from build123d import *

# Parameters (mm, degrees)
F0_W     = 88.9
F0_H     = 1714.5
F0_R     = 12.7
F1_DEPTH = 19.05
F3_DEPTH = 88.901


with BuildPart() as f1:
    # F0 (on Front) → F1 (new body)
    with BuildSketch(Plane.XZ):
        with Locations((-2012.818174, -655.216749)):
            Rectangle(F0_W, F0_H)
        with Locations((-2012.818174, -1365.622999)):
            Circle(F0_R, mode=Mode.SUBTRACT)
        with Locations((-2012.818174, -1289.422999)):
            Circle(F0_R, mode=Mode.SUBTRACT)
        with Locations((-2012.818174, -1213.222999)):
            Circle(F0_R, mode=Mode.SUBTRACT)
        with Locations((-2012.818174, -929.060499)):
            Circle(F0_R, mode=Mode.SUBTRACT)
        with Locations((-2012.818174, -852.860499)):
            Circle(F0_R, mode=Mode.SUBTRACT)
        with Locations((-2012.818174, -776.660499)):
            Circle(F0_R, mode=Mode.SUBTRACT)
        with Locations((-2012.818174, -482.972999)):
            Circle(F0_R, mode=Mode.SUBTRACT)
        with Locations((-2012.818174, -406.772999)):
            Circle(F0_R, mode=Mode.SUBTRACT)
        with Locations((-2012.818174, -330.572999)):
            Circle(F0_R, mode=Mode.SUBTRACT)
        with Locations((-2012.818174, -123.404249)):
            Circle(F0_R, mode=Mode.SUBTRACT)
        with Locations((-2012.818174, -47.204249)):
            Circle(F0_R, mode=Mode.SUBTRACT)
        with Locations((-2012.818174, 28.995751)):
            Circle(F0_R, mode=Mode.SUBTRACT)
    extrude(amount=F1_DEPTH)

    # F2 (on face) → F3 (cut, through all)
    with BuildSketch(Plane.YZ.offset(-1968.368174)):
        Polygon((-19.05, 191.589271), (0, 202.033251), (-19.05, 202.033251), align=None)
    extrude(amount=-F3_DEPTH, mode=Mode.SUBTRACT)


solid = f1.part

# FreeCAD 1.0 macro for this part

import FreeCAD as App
import Part
import Sketcher
from FreeCAD import Vector
Q = App.Units.Quantity

doc = App.newDocument("Part")
body = doc.addObject("PartDesign::Body", "Body")

# Sketch on XZ plane
sketch1 = body.newObject("Sketcher::SketchObject", "Sketch")
sketch1.AttachmentSupport = (doc.getObject("XZ_Plane"), [""])
sketch1.MapMode = "FlatFace"
sketch1.addGeometry([
    Part.LineSegment(Vector(-2057, 202, 0), Vector(-2057, -1512, 0)),  # 0
    Part.LineSegment(Vector(-2057, -1512, 0), Vector(-1968, -1512, 0)),  # 1
    Part.LineSegment(Vector(-1968, -1512, 0), Vector(-1968, 202, 0)),  # 2
    Part.LineSegment(Vector(-1968, 202, 0), Vector(-2057, 202, 0)),  # 3
    Part.Circle(Vector(-2013, -1366, 0), Vector(0, 0, 1), 13),  # 4
    Part.Circle(Vector(-2013, -1289, 0), Vector(0, 0, 1), 13),  # 5
    Part.Circle(Vector(-2013, -1213, 0), Vector(0, 0, 1), 13),  # 6
    Part.Circle(Vector(-2013, -929, 0), Vector(0, 0, 1), 13),  # 7
    Part.Circle(Vector(-2013, -853, 0), Vector(0, 0, 1), 13),  # 8
    Part.Circle(Vector(-2013, -777, 0), Vector(0, 0, 1), 13),  # 9
    Part.Circle(Vector(-2013, -483, 0), Vector(0, 0, 1), 13),  # 10
    Part.Circle(Vector(-2013, -407, 0), Vector(0, 0, 1), 13),  # 11
    Part.Circle(Vector(-2013, -331, 0), Vector(0, 0, 1), 13),  # 12
    Part.Circle(Vector(-2013, -123, 0), Vector(0, 0, 1), 13),  # 13
    Part.Circle(Vector(-2013, -47, 0), Vector(0, 0, 1), 13),  # 14
    Part.Circle(Vector(-2013, 29, 0), Vector(0, 0, 1), 13),  # 15
], False)
sketch1.addConstraint([
    Sketcher.Constraint("Coincident", 0, 2, 1, 1),
    Sketcher.Constraint("Coincident", 1, 2, 2, 1),
    Sketcher.Constraint("Coincident", 2, 2, 3, 1),
    Sketcher.Constraint("Coincident", 3, 2, 0, 1),
    Sketcher.Constraint("Vertical", 0),
    Sketcher.Constraint("Horizontal", 1),
    Sketcher.Constraint("Vertical", 2),
    Sketcher.Constraint("Horizontal", 3),
    Sketcher.Constraint("Equal", 4, 5),
    Sketcher.Constraint("Equal", 5, 6),
    Sketcher.Constraint("Equal", 6, 7),
    Sketcher.Constraint("Equal", 7, 8),
    Sketcher.Constraint("Equal", 8, 9),
    Sketcher.Constraint("Equal", 9, 10),
    Sketcher.Constraint("Equal", 10, 11),
    Sketcher.Constraint("Equal", 11, 12),
    Sketcher.Constraint("Equal", 12, 13),
    Sketcher.Constraint("Equal", 13, 14),
    Sketcher.Constraint("Equal", 14, 15),
    Sketcher.Constraint("Vertical", 4, 3, 5, 3),
    Sketcher.Constraint("Vertical", 5, 3, 6, 3),
    Sketcher.Constraint("Vertical", 6, 3, 7, 3),
    Sketcher.Constraint("Vertical", 7, 3, 8, 3),
    Sketcher.Constraint("Vertical", 8, 3, 9, 3),
    Sketcher.Constraint("Vertical", 9, 3, 10, 3),
    Sketcher.Constraint("Vertical", 10, 3, 11, 3),
    Sketcher.Constraint("Vertical", 11, 3, 12, 3),
    Sketcher.Constraint("Vertical", 12, 3, 13, 3),
    Sketcher.Constraint("Vertical", 13, 3, 14, 3),
    Sketcher.Constraint("Vertical", 14, 3, 15, 3),
    Sketcher.Constraint("Diameter", 4, Q("1 in")),
    Sketcher.Constraint("DistanceX", 1, 1, 1, 2, Q("3.5 in")),
    Sketcher.Constraint("DistanceY", 0, 2, 0, 1, Q("67.5 in")),
    Sketcher.Constraint("DistanceY", 4, 3, 5, 3, Q("3 in")),
    Sketcher.Constraint("DistanceY", 5, 3, 6, 3, Q("3 in")),
    Sketcher.Constraint("DistanceY", 7, 3, 8, 3, Q("3 in")),
    Sketcher.Constraint("DistanceY", 8, 3, 9, 3, Q("3 in")),
    Sketcher.Constraint("DistanceY", 10, 3, 11, 3, Q("3 in")),
    Sketcher.Constraint("DistanceY", 11, 3, 12, 3, Q("3 in")),
    Sketcher.Constraint("DistanceY", 13, 3, 14, 3, Q("3 in")),
    Sketcher.Constraint("DistanceY", 14, 3, 15, 3, Q("3 in")),
    Sketcher.Constraint("DistanceY", 6, 3, 10, 3, Q("28.75 in")),
    Sketcher.Constraint("DistanceX", 0, 2, 4, 3, Q("1.75 in")),
    Sketcher.Constraint("DistanceY", 6, 3, 7, 3, Q("11.1875 in")),
    Sketcher.Constraint("DistanceY", 12, 3, 13, 3, Q("8.15625 in")),
    Sketcher.Constraint("DistanceY", 0, 2, 4, 3, Q("5.78125 in")),
    Sketcher.Constraint("DistanceY", 4, 3, -1, 1, 1365.622999),
    Sketcher.Constraint("DistanceX", 4, 3, -1, 1, 2012.818174),
])
pad1 = body.newObject("PartDesign::Pad", "Pad")
pad1.Profile = sketch1
pad1.Length = Q("0.75 in")

# Sketch on YZ plane
sketch2 = body.newObject("Sketcher::SketchObject", "Sketch001")
sketch2.AttachmentSupport = (doc.getObject("YZ_Plane"), [""])
sketch2.MapMode = "FlatFace"
sketch2.AttachmentOffset = App.Placement(Vector(0, 0, -1968.368174), App.Rotation())
sketch2.addGeometry([
    Part.LineSegment(Vector(-19, 192, 0), Vector(0, 202, 0)),
    Part.LineSegment(Vector(0, 202, 0), Vector(-19, 202, 0)),
    Part.LineSegment(Vector(-19, 202, 0), Vector(-19, 192, 0)),
], False)
sketch2.addConstraint([
    Sketcher.Constraint("Coincident", 0, 2, 1, 1),
    Sketcher.Constraint("Coincident", 1, 2, 2, 1),
    Sketcher.Constraint("Coincident", 2, 2, 0, 1),
    Sketcher.Constraint("Horizontal", 1),
    Sketcher.Constraint("Vertical", 2),
    Sketcher.Constraint("PointOnObject", 0, 2, -2),
    Sketcher.Constraint("DistanceX", 1, 2, 1, 1, Q("0.75 in")),
    Sketcher.Constraint("DistanceY", 2, 2, 2, 1, 10.44398),
    Sketcher.Constraint("DistanceY", -1, 1, 0, 2, 202.033251),
])
pocket1 = body.newObject("PartDesign::Pocket", "Pocket")
pocket1.Profile = sketch2
pocket1.Type = "ThroughAll"

doc.recompute()
